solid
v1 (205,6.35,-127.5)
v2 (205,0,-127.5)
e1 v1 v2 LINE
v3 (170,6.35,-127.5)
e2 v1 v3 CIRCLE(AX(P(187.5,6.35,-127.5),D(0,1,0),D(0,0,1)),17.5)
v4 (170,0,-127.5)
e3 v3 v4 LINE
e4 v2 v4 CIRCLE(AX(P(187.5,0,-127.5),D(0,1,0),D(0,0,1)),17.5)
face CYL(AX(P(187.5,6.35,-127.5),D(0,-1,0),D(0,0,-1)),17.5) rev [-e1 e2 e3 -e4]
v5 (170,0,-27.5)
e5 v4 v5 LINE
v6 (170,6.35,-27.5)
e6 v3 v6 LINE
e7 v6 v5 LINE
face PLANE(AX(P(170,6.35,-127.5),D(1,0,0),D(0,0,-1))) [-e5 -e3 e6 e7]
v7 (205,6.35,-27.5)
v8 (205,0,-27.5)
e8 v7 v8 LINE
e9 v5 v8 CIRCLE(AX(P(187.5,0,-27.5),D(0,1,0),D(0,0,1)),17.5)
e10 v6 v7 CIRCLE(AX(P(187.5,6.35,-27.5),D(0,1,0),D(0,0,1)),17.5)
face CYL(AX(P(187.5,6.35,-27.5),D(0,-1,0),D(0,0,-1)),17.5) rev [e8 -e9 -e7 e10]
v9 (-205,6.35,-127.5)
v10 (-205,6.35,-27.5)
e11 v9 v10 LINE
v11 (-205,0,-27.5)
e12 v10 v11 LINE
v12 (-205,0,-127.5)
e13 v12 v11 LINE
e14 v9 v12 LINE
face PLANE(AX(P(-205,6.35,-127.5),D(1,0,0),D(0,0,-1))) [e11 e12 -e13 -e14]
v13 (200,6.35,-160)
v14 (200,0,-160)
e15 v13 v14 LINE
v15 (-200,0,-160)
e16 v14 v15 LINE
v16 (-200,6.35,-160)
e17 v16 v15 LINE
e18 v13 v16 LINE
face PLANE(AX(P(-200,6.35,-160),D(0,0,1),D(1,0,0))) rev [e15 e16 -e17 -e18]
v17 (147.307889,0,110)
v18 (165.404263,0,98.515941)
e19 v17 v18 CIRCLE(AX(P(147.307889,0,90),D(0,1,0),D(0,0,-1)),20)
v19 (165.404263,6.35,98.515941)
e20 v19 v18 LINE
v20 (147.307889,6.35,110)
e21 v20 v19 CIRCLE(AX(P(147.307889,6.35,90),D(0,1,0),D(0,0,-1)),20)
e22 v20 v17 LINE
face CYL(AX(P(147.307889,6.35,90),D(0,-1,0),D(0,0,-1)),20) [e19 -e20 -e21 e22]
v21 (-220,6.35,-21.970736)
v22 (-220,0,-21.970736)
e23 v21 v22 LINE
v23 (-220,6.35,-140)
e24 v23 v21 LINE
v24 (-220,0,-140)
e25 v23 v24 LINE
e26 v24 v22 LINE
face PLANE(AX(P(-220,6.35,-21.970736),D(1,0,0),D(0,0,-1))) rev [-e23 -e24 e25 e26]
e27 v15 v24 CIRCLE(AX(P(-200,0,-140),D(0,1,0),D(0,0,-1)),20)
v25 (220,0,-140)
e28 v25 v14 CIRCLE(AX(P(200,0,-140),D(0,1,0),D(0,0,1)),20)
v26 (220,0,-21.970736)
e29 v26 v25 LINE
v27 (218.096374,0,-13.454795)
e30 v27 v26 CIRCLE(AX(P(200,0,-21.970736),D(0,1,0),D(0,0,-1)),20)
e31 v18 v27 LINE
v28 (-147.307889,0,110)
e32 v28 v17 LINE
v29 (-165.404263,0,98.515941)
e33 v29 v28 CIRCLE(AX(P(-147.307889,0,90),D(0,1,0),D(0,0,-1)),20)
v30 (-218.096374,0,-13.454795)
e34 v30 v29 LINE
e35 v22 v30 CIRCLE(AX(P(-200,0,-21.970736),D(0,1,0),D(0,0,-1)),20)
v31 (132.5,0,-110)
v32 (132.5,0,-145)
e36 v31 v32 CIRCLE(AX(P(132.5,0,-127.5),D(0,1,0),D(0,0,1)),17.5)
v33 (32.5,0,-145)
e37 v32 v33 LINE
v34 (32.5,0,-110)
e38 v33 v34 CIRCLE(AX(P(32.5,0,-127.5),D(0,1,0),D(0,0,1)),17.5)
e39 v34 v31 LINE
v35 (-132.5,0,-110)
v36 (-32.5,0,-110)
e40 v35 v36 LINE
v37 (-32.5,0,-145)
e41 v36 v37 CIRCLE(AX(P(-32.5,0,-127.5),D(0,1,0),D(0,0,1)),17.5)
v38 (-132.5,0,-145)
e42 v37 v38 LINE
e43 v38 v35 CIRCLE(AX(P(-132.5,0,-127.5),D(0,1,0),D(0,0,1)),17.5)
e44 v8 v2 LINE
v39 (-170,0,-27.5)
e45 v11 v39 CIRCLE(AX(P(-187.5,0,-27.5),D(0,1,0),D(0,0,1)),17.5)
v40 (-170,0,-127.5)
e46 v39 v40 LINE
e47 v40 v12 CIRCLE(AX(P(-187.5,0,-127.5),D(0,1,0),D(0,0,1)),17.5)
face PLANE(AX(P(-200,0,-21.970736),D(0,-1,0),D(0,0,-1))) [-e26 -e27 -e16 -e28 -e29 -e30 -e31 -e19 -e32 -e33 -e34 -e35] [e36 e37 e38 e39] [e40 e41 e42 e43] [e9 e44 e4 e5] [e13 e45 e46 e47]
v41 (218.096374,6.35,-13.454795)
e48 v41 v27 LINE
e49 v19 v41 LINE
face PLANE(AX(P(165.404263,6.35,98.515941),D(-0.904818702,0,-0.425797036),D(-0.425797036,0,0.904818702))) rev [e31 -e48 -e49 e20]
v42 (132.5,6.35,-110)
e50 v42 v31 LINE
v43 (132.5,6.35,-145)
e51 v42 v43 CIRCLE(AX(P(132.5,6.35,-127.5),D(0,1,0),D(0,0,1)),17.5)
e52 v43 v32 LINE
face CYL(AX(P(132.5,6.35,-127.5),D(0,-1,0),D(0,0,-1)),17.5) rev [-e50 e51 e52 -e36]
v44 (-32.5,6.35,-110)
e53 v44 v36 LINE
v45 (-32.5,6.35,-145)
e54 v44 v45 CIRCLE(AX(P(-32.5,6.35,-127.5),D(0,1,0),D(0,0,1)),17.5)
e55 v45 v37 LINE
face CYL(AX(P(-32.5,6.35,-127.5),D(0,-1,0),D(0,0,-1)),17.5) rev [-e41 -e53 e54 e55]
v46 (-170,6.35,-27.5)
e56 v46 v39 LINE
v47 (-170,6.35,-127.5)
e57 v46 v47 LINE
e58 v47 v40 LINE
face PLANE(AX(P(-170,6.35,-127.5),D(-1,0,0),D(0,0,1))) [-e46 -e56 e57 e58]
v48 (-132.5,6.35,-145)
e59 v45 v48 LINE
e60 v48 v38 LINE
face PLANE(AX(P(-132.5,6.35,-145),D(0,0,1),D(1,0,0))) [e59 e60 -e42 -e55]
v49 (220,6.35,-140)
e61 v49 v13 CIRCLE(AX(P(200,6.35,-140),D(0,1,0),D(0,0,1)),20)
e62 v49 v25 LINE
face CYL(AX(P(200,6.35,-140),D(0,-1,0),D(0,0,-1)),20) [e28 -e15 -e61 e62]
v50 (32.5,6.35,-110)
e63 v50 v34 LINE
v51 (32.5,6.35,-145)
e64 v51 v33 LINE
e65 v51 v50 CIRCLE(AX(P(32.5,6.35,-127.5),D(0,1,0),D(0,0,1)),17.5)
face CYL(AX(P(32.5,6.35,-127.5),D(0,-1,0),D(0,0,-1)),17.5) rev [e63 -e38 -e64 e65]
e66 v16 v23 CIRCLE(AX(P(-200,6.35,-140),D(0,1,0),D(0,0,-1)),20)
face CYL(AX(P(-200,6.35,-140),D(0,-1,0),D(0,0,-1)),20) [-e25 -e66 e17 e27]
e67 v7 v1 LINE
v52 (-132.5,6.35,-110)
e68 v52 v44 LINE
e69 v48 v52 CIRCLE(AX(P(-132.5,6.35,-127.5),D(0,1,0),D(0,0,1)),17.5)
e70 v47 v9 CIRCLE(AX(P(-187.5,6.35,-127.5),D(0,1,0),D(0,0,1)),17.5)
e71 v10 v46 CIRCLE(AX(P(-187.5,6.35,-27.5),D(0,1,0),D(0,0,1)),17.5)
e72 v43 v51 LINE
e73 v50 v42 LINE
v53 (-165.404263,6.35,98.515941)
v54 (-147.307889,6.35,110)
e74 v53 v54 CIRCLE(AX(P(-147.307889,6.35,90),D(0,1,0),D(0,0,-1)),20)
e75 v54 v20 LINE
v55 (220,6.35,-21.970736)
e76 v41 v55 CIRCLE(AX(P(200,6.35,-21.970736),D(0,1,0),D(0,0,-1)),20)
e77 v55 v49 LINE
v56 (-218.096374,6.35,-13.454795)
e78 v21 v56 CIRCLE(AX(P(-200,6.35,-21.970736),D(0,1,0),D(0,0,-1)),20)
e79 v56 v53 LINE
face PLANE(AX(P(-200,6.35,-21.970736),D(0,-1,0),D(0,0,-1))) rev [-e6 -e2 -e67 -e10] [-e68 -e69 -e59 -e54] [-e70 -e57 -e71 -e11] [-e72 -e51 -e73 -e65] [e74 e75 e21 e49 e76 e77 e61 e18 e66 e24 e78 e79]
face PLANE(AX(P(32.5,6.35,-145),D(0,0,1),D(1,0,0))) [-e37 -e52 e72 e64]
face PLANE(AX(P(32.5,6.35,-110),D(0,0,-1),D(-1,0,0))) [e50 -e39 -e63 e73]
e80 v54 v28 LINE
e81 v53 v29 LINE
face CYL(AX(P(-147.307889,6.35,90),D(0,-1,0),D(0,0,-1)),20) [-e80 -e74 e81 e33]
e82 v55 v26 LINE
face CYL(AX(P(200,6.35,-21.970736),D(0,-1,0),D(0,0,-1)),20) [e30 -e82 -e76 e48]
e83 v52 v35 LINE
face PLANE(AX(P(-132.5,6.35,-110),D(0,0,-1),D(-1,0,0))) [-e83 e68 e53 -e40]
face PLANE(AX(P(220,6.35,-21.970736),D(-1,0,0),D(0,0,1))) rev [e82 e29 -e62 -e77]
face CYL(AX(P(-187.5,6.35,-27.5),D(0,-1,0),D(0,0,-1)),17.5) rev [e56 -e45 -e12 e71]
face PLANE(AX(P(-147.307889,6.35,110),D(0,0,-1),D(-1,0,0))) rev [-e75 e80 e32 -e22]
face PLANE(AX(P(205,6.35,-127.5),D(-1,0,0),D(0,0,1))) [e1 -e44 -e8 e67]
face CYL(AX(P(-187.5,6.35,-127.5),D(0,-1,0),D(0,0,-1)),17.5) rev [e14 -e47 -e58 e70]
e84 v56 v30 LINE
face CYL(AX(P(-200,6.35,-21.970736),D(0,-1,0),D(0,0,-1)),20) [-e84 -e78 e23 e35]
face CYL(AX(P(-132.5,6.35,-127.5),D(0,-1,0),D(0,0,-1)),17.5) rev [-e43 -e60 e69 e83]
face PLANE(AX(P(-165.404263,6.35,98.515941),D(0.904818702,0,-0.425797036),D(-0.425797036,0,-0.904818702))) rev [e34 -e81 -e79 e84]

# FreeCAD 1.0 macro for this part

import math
import FreeCAD as App
import Part
import Sketcher

V = App.Vector
Q = App.Units.Quantity

doc = App.newDocument("Part")
body = doc.addObject("PartDesign::Body", "Body")

sketch1 = doc.addObject("Sketcher::SketchObject", "Sketch")
body.addObject(sketch1)
sketch1.AttachmentSupport = (doc.XZ_Plane, [""])
sketch1.MapMode = "FlatFace"
sketch1.addGeometry([
    Part.LineSegment(V(-147, 110, 0), V(147, 110, 0)),
    Part.ArcOfCircle(Part.Circle(V(147, 90, 0), V(0, 0, 1), 20), math.radians(25), math.radians(90)),
    Part.LineSegment(V(165, 99, 0), V(218, -13, 0)),
    Part.ArcOfCircle(Part.Circle(V(200, -22, 0), V(0, 0, 1), 20), math.radians(0), math.radians(25)),
    Part.LineSegment(V(220, -22, 0), V(220, -140, 0)),
    Part.ArcOfCircle(Part.Circle(V(200, -140, 0), V(0, 0, 1), 20), math.radians(-90), math.radians(0)),
    Part.LineSegment(V(200, -160, 0), V(-200, -160, 0)),
    Part.ArcOfCircle(Part.Circle(V(-200, -140, 0), V(0, 0, 1), 20), math.radians(180), math.radians(270)),
    Part.LineSegment(V(-220, -140, 0), V(-220, -22, 0)),
    Part.ArcOfCircle(Part.Circle(V(-200, -22, 0), V(0, 0, 1), 20), math.radians(155), math.radians(180)),
    Part.LineSegment(V(-218, -13, 0), V(-165, 99, 0)),
    Part.ArcOfCircle(Part.Circle(V(-147, 90, 0), V(0, 0, 1), 20), math.radians(90), math.radians(155)),
    Part.ArcOfCircle(Part.Circle(V(-188, -128, 0), V(0, 0, 1), 18), math.radians(180), math.radians(360)),
    Part.LineSegment(V(-170, -128, 0), V(-170, -28, 0)),
    Part.ArcOfCircle(Part.Circle(V(-188, -28, 0), V(0, 0, 1), 18), math.radians(0), math.radians(180)),
    Part.LineSegment(V(-205, -28, 0), V(-205, -128, 0)),
    Part.ArcOfCircle(Part.Circle(V(-132, -128, 0), V(0, 0, 1), 18), math.radians(90), math.radians(270)),
    Part.LineSegment(V(-132, -145, 0), V(-32, -145, 0)),
    Part.ArcOfCircle(Part.Circle(V(-32, -128, 0), V(0, 0, 1), 18), math.radians(-90), math.radians(90)),
    Part.LineSegment(V(-32, -110, 0), V(-132, -110, 0)),
    Part.ArcOfCircle(Part.Circle(V(188, -128, 0), V(0, 0, 1), 18), math.radians(180), math.radians(360)),
    Part.LineSegment(V(205, -128, 0), V(205, -28, 0)),
    Part.ArcOfCircle(Part.Circle(V(188, -28, 0), V(0, 0, 1), 18), math.radians(0), math.radians(180)),
    Part.LineSegment(V(170, -28, 0), V(170, -128, 0)),
    Part.ArcOfCircle(Part.Circle(V(32, -128, 0), V(0, 0, 1), 18), math.radians(90), math.radians(270)),
    Part.LineSegment(V(32, -145, 0), V(132, -145, 0)),
    Part.ArcOfCircle(Part.Circle(V(132, -128, 0), V(0, 0, 1), 18), math.radians(-90), math.radians(90)),
    Part.LineSegment(V(132, -110, 0), V(32, -110, 0)),
], False)
sketch1.addConstraint([
    Sketcher.Constraint("Tangent", 0, 2, 1, 2),
    Sketcher.Constraint("Tangent", 1, 1, 2, 1),
    Sketcher.Constraint("Tangent", 2, 2, 3, 2),
    Sketcher.Constraint("Tangent", 3, 1, 4, 1),
    Sketcher.Constraint("Tangent", 4, 2, 5, 2),
    Sketcher.Constraint("Tangent", 5, 1, 6, 1),
    Sketcher.Constraint("Tangent", 6, 2, 7, 2),
    Sketcher.Constraint("Tangent", 7, 1, 8, 1),
    Sketcher.Constraint("Tangent", 8, 2, 9, 2),
    Sketcher.Constraint("Tangent", 9, 1, 10, 1),
    Sketcher.Constraint("Tangent", 10, 2, 11, 2),
    Sketcher.Constraint("Tangent", 11, 1, 0, 1),
    Sketcher.Constraint("Tangent", 12, 2, 13, 1),
    Sketcher.Constraint("Tangent", 13, 2, 14, 1),
    Sketcher.Constraint("Tangent", 14, 2, 15, 1),
    Sketcher.Constraint("Tangent", 15, 2, 12, 1),
    Sketcher.Constraint("Tangent", 16, 2, 17, 1),
    Sketcher.Constraint("Tangent", 17, 2, 18, 1),
    Sketcher.Constraint("Tangent", 18, 2, 19, 1),
    Sketcher.Constraint("Tangent", 19, 2, 16, 1),
    Sketcher.Constraint("Tangent", 20, 2, 21, 1),
    Sketcher.Constraint("Tangent", 21, 2, 22, 1),
    Sketcher.Constraint("Tangent", 22, 2, 23, 1),
    Sketcher.Constraint("Tangent", 23, 2, 20, 1),
    Sketcher.Constraint("Tangent", 24, 2, 25, 1),
    Sketcher.Constraint("Tangent", 25, 2, 26, 1),
    Sketcher.Constraint("Tangent", 26, 2, 27, 1),
    Sketcher.Constraint("Tangent", 27, 2, 24, 1),
    Sketcher.Constraint("Horizontal", 0),
    Sketcher.Constraint("Vertical", 4),
    Sketcher.Constraint("Horizontal", 6),
    Sketcher.Constraint("Vertical", 8),
    Sketcher.Constraint("Vertical", 13),
    Sketcher.Constraint("Vertical", 15),
    Sketcher.Constraint("Horizontal", 17),
    Sketcher.Constraint("Horizontal", 19),
    Sketcher.Constraint("Vertical", 21),
    Sketcher.Constraint("Vertical", 23),
    Sketcher.Constraint("Horizontal", 25),
    Sketcher.Constraint("Horizontal", 27),
    Sketcher.Constraint("Equal", 1, 3),
    Sketcher.Constraint("Equal", 3, 5),
    Sketcher.Constraint("Equal", 5, 7),
    Sketcher.Constraint("Equal", 7, 9),
    Sketcher.Constraint("Equal", 9, 11),
    Sketcher.Constraint("Equal", 14, 16),
    Sketcher.Constraint("Equal", 18, 20),
    Sketcher.Constraint("Equal", 22, 24),
    Sketcher.Constraint("Symmetric", 3, 3, 9, 3, -2),
    Sketcher.Constraint("Symmetric", 12, 3, 20, 3, -2),
    Sketcher.Constraint("Symmetric", 18, 3, 24, 3, -2),
    Sketcher.Constraint("Horizontal", 12, 3, 16, 3),
    Sketcher.Constraint("Horizontal", 14, 3, 22, 3),
    Sketcher.Constraint("Horizontal", 2, 2, 9, 1),
    Sketcher.Constraint("Equal", 19, 25),
    Sketcher.Constraint("Equal", 27, 13),
    Sketcher.Constraint("Radius", 1, Q("20 mm")),
    Sketcher.Constraint("Radius", 12, Q("17.5 mm")),
    Sketcher.Constraint("DistanceX", 6, 2, 6, 1, Q("400 mm")),
    Sketcher.Constraint("DistanceX", 17, 1, 17, 2, Q("100 mm")),
    Sketcher.Constraint("DistanceY", -1, 1, 1, 3, Q("90 mm")),
    Sketcher.Constraint("DistanceY", 5, 3, -1, 1, Q("140 mm")),
    Sketcher.Constraint("DistanceX", 12, 2, -1, 1, Q("170 mm")),
    Sketcher.Constraint("DistanceY", 16, 2, -1, 1, Q("145 mm")),
    Sketcher.Constraint("DistanceX", 12, 3, 16, 3, Q("55 mm")),
    Sketcher.Constraint("DistanceX", 0, 1, 0, 2, Q("294.615778 mm")),
    Sketcher.Constraint("Distance", 2, Q("123.74936 mm")),
])
pad1 = doc.addObject("PartDesign::Pad", "Pad")
body.addObject(pad1)
pad1.Profile = sketch1
pad1.Length = 6.35
pad1.Reversed = True

doc.recompute()
